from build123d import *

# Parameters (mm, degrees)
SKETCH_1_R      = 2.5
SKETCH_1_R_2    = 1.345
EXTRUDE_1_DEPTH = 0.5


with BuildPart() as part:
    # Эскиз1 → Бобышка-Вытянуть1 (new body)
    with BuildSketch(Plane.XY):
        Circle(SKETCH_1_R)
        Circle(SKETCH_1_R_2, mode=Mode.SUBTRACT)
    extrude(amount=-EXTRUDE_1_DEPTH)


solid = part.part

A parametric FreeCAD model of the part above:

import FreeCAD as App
import Part
import Sketcher
from FreeCAD import Vector

doc = App.newDocument("Part")
body = doc.addObject("PartDesign::Body", "Body")

# Sketch on XY plane
sketch1 = body.newObject("Sketcher::SketchObject", "Sketch")
sketch1.AttachmentSupport = (doc.getObject("XY_Plane"), [""])
sketch1.MapMode = "FlatFace"
sketch1.addGeometry([
    Part.Circle(Vector(0, 0, 0), Vector(0, 0, 1), 2.5),
    Part.Circle(Vector(0, 0, 0), Vector(0, 0, 1), 1.3),
], False)
sketch1.addConstraint([
    Sketcher.Constraint("Coincident", 0, 3, -1, 1),
    Sketcher.Constraint("Coincident", 1, 3, -1, 1),
    Sketcher.Constraint("Diameter", 0, 5.0),
    Sketcher.Constraint("Diameter", 1, 2.69),
])
pad1 = body.newObject("PartDesign::Pad", "Pad")
pad1.Profile = sketch1
pad1.Length = 0.5
pad1.Reversed = True

doc.recompute()
